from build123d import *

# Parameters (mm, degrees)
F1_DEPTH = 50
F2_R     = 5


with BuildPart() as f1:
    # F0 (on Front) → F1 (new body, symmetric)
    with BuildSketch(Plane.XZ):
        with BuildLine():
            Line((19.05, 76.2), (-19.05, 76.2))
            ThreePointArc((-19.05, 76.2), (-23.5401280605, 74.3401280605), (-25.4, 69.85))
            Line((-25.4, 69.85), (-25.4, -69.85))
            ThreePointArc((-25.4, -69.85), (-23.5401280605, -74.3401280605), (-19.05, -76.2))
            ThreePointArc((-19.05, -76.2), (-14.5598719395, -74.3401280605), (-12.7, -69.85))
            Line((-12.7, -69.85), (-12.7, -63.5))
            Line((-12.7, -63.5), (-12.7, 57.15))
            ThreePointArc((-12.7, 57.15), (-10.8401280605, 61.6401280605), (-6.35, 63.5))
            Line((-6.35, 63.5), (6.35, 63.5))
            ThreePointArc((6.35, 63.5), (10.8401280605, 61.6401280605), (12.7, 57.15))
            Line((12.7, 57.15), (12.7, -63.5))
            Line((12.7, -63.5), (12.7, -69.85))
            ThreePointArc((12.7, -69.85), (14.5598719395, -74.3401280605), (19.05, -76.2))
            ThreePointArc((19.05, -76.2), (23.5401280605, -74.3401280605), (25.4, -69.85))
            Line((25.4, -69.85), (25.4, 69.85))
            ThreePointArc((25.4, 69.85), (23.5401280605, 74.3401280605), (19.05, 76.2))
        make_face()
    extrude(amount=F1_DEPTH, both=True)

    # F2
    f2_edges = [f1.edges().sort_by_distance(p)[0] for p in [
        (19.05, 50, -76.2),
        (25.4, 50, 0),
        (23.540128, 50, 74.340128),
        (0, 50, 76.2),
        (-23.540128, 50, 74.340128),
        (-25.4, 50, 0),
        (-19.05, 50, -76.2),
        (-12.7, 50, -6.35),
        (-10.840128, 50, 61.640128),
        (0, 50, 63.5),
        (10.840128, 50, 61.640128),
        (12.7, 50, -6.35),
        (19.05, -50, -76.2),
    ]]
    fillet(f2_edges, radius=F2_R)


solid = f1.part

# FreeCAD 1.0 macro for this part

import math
import FreeCAD as App
import Part
import Sketcher

V = App.Vector
Q = App.Units.Quantity


def edges_at(feature, points):
    """Names of the edges that pass closest to the given points."""
    edges = feature.Shape.Edges
    near = lambda p: min(range(len(edges)), key=lambda i: edges[i].distToShape(Part.Vertex(*p))[0])
    return sorted({f"Edge{near(p) + 1}" for p in points})

doc = App.newDocument("Part")
body = doc.addObject("PartDesign::Body", "Body")

# Sketch on XZ plane
sketch1 = body.newObject("Sketcher::SketchObject", "Sketch")
sketch1.AttachmentSupport = (doc.getObject("XZ_Plane"), [""])
sketch1.MapMode = "FlatFace"
sketch1.addGeometry(Part.LineSegment(V(19.05, 76.2, 0), V(-19.05, 76.2, 0)), False)
sketch1.addGeometry(Part.ArcOfCircle(Part.Circle(V(-19.05, 69.85, 0), V(0, 0, 1), 6.35), math.radians(90), math.radians(180)), False)
sketch1.addGeometry(Part.LineSegment(V(-25.4, 69.85, 0), V(-25.4, -69.85, 0)), False)
sketch1.addGeometry(Part.ArcOfCircle(Part.Circle(V(-19.05, -69.85, 0), V(0, 0, 1), 6.35), math.radians(180), math.radians(270)), False)
sketch1.addGeometry(Part.ArcOfCircle(Part.Circle(V(-19.05, -69.85, 0), V(0, 0, 1), 6.35), math.radians(-90), math.radians(0)), False)
sketch1.addGeometry(Part.LineSegment(V(-12.7, -69.85, 0), V(-12.7, 57.15, 0)), False)
sketch1.addGeometry(Part.ArcOfCircle(Part.Circle(V(-6.35, 57.15, 0), V(0, 0, 1), 6.35), math.radians(90), math.radians(180)), False)
sketch1.addGeometry(Part.LineSegment(V(-6.35, 63.5, 0), V(6.35, 63.5, 0)), False)
sketch1.addGeometry(Part.ArcOfCircle(Part.Circle(V(6.35, 57.15, 0), V(0, 0, 1), 6.35), math.radians(0), math.radians(90)), False)
sketch1.addGeometry(Part.LineSegment(V(12.7, 57.15, 0), V(12.7, -69.85, 0)), False)
sketch1.addGeometry(Part.ArcOfCircle(Part.Circle(V(19.05, -69.85, 0), V(0, 0, 1), 6.35), math.radians(180), math.radians(270)), False)
sketch1.addGeometry(Part.ArcOfCircle(Part.Circle(V(19.05, -69.85, 0), V(0, 0, 1), 6.35), math.radians(-90), math.radians(0)), False)
sketch1.addGeometry(Part.LineSegment(V(25.4, -69.85, 0), V(25.4, 69.85, 0)), False)
sketch1.addGeometry(Part.ArcOfCircle(Part.Circle(V(19.05, 69.85, 0), V(0, 0, 1), 6.35), math.radians(0), math.radians(90)), False)
sketch1.addConstraint(Sketcher.Constraint("Tangent", 0, 2, 1, 1))
sketch1.addConstraint(Sketcher.Constraint("Tangent", 1, 2, 2, 1))
sketch1.addConstraint(Sketcher.Constraint("Tangent", 2, 2, 3, 1))
sketch1.addConstraint(Sketcher.Constraint("Tangent", 3, 2, 4, 1))
sketch1.addConstraint(Sketcher.Constraint("Tangent", 4, 2, 5, 1))
sketch1.addConstraint(Sketcher.Constraint("Tangent", 5, 2, 6, 2))
sketch1.addConstraint(Sketcher.Constraint("Tangent", 6, 1, 7, 1))
sketch1.addConstraint(Sketcher.Constraint("Tangent", 7, 2, 8, 2))
sketch1.addConstraint(Sketcher.Constraint("Tangent", 8, 1, 9, 1))
sketch1.addConstraint(Sketcher.Constraint("Tangent", 9, 2, 10, 1))
sketch1.addConstraint(Sketcher.Constraint("Tangent", 10, 2, 11, 1))
sketch1.addConstraint(Sketcher.Constraint("Tangent", 11, 2, 12, 1))
sketch1.addConstraint(Sketcher.Constraint("Tangent", 12, 2, 13, 1))
sketch1.addConstraint(Sketcher.Constraint("Tangent", 13, 2, 0, 1))
sketch1.addConstraint(Sketcher.Constraint("Horizontal", 0))
sketch1.addConstraint(Sketcher.Constraint("Vertical", 2))
sketch1.addConstraint(Sketcher.Constraint("Vertical", 5))
sketch1.addConstraint(Sketcher.Constraint("Horizontal", 7))
sketch1.addConstraint(Sketcher.Constraint("Vertical", 9))
sketch1.addConstraint(Sketcher.Constraint("Vertical", 12))
sketch1.addConstraint(Sketcher.Constraint("Equal", 1, 3))
sketch1.addConstraint(Sketcher.Constraint("Equal", 3, 4))
sketch1.addConstraint(Sketcher.Constraint("Equal", 4, 6))
sketch1.addConstraint(Sketcher.Constraint("Equal", 6, 8))
sketch1.addConstraint(Sketcher.Constraint("Equal", 8, 10))
sketch1.addConstraint(Sketcher.Constraint("Equal", 10, 11))
sketch1.addConstraint(Sketcher.Constraint("Equal", 11, 13))
sketch1.addConstraint(Sketcher.Constraint("Symmetric", 1, 3, 10, 3, -1, 1))
sketch1.addConstraint(Sketcher.Constraint("Symmetric", 3, 2, 13, 2, -1, 1))
sketch1.addConstraint(Sketcher.Constraint("Vertical", 13, 3, 10, 2))
sketch1.addConstraint(Sketcher.Constraint("DistanceY", 5, 1, 5, 2, Q("5 in")))
sketch1.addConstraint(Sketcher.Constraint("Radius", 1, Q("0.25 in")))
sketch1.addConstraint(Sketcher.Constraint("DistanceX", 0, 2, 0, 1, Q("1.5 in")))
sketch1.addConstraint(Sketcher.Constraint("DistanceY", 2, 2, 2, 1, Q("5.5 in")))
pad1 = body.newObject("PartDesign::Pad", "Pad")
pad1.Profile = sketch1
pad1.Length = 100
pad1.Midplane = True
doc.recompute()

fillet = body.newObject("PartDesign::Fillet", "Fillet")
fillet.Base = (pad1, edges_at(pad1, [
    (14.56, 50, -74.34),
    (25.4, 50, 0),
    (23.54, 50, 74.34),
    (0, 50, 76.2),
    (-23.54, 50, 74.34),
    (-25.4, 50, 0),
    (-23.54, 50, -74.34),
    (-12.7, 50, -6.35),
    (-10.84, 50, 61.64),
    (0, 50, 63.5),
    (10.84, 50, 61.64),
    (12.7, 50, -6.35),
    (23.54, -50, -74.34),
]))
fillet.Radius = 5

doc.recompute()
